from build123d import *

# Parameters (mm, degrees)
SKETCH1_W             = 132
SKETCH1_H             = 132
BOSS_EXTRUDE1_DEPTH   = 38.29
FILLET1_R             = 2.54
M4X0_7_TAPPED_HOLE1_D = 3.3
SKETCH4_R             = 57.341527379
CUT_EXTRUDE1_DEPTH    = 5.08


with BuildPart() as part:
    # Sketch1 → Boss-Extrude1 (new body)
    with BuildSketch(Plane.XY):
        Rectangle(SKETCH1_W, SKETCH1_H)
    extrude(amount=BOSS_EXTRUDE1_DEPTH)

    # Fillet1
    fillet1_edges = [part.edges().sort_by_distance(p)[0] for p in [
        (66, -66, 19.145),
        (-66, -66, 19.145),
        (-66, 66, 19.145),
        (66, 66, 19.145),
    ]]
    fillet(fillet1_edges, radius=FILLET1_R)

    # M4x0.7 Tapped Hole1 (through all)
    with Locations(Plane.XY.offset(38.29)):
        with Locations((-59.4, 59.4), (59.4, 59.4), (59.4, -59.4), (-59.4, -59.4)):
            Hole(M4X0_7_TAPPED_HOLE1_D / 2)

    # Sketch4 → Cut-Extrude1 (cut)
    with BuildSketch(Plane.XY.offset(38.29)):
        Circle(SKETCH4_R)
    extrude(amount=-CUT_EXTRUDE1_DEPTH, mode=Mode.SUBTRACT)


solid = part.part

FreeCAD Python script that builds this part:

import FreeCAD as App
import Part
import Sketcher
from FreeCAD import Vector


def edges_at(feature, points):
    """Names of the edges that pass closest to the given points."""
    edges = feature.Shape.Edges
    near = lambda p: min(range(len(edges)), key=lambda i: edges[i].distToShape(Part.Vertex(*p))[0])
    return sorted({f"Edge{near(p) + 1}" for p in points})


def add_polygon(sketch, points):
    """Adds a closed chain of lines whose ends are joined by coincident constraints."""
    first, n = sketch.GeometryCount, len(points)
    for a, b in zip(points, points[1:] + points[:1]):
        sketch.addGeometry(Part.LineSegment(App.Vector(*a, 0), App.Vector(*b, 0)), False)
    for i in range(n):
        sketch.addConstraint(Sketcher.Constraint("Coincident", first + i, 2, first + (i + 1) % n, 1))

doc = App.newDocument("Part")
body = doc.addObject("PartDesign::Body", "Body")

sketch1 = body.newObject("Sketcher::SketchObject", "Sketch")
sketch1.AttachmentSupport = (doc.getObject("XY_Plane"), [""])
sketch1.MapMode = "FlatFace"
add_polygon(sketch1, [(-66, 66), (-66, -66), (66, -66), (66, 66)])
sketch1.addConstraint([
    Sketcher.Constraint("Vertical", 0),
    Sketcher.Constraint("Horizontal", 1),
    Sketcher.Constraint("Vertical", 2),
    Sketcher.Constraint("Horizontal", 3),
    Sketcher.Constraint("Symmetric", 0, 2, 2, 2, -1, 1),
    Sketcher.Constraint("Equal", 3, 0),
    Sketcher.Constraint("DistanceX", 1, 1, 1, 2, 132.0),
])
pad1 = body.newObject("PartDesign::Pad", "Pad")
pad1.Profile = sketch1
pad1.Length = 38.29
doc.recompute()

fillet = body.newObject("PartDesign::Fillet", "Fillet")
fillet.Base = (pad1, edges_at(pad1, [
    (66, -66, 19.145),
    (-66, -66, 19.145),
    (-66, 66, 19.145),
    (66, 66, 19.145),
]))
fillet.Radius = 2.54

sketch2 = body.newObject("Sketcher::SketchObject", "Sketch001")
sketch2.AttachmentSupport = (doc.getObject("XY_Plane"), [""])
sketch2.MapMode = "FlatFace"
sketch2.AttachmentOffset = App.Placement(Vector(0, 0, 38.29), App.Rotation())
sketch2.addGeometry([
    Part.Circle(Vector(-59.4, 59.4, 0), Vector(0, 0, 1), 1.65),
    Part.Circle(Vector(59.4, 59.4, 0), Vector(0, 0, 1), 1.65),
    Part.Circle(Vector(59.4, -59.4, 0), Vector(0, 0, 1), 1.65),
    Part.Circle(Vector(-59.4, -59.4, 0), Vector(0, 0, 1), 1.65),
], False)
sketch2.addConstraint([
    Sketcher.Constraint("Equal", 0, 1),
    Sketcher.Constraint("Equal", 1, 2),
    Sketcher.Constraint("Equal", 2, 3),
    Sketcher.Constraint("Symmetric", 0, 3, 2, 3, -1, 1),
    Sketcher.Constraint("Symmetric", 1, 3, 3, 3, -1, 1),
    Sketcher.Constraint("Symmetric", 0, 3, 1, 3, -2),
    Sketcher.Constraint("Diameter", 0, 3.3),
    Sketcher.Constraint("DistanceX", 0, 3, -1, 1, 59.4),
    Sketcher.Constraint("DistanceY", -1, 1, 0, 3, 59.4),
])
doc.recompute()
hole = body.newObject("PartDesign::Hole", "Hole")
hole.Profile = sketch2
hole.ThreadType = "None"
hole.Diameter = 3.3
hole.DepthType = "ThroughAll"

sketch3 = body.newObject("Sketcher::SketchObject", "Sketch002")
sketch3.AttachmentSupport = (doc.getObject("XY_Plane"), [""])
sketch3.MapMode = "FlatFace"
sketch3.AttachmentOffset = App.Placement(Vector(0, 0, 38.29), App.Rotation())
sketch3.addGeometry(Part.Circle(Vector(0, 0, 0), Vector(0, 0, 1), 57.341527), False)
sketch3.addConstraint([
    Sketcher.Constraint("Coincident", 0, 3, -1, 1),
    Sketcher.Constraint("Diameter", 0, 114.683055),
])
pocket1 = body.newObject("PartDesign::Pocket", "Pocket")
pocket1.Profile = sketch3
pocket1.Length = 5.08

doc.recompute()
